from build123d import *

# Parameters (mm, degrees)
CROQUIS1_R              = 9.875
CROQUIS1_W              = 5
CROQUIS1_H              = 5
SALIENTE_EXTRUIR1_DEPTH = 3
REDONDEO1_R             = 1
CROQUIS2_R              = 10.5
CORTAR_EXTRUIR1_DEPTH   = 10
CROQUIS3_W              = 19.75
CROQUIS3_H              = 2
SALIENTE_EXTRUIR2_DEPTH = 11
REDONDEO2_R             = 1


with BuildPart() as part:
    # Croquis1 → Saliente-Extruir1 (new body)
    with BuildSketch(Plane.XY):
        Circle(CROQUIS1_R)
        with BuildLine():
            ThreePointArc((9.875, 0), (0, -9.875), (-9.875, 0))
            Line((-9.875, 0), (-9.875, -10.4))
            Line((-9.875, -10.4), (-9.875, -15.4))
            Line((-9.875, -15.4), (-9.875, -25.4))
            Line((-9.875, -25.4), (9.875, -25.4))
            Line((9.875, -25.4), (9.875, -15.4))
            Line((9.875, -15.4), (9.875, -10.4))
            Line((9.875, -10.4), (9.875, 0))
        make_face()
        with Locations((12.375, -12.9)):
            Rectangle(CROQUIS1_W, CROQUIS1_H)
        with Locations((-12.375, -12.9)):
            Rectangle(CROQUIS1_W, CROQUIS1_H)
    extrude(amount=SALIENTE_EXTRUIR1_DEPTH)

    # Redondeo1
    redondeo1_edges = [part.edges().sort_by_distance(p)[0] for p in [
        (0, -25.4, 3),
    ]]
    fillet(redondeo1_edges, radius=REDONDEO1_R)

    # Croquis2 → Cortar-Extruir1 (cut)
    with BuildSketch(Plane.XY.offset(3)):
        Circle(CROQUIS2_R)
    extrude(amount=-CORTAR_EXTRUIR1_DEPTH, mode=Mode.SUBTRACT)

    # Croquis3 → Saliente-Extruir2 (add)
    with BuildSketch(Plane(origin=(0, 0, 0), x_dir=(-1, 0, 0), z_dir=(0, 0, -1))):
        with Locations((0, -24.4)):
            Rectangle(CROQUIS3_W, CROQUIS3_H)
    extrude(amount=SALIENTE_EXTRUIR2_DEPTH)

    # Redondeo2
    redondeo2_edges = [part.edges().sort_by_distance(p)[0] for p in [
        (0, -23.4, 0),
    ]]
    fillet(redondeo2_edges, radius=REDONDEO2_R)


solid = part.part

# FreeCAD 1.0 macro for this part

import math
import FreeCAD as App
import Part
import Sketcher
from FreeCAD import Vector
Q = App.Units.Quantity


def edges_at(feature, points):
    """Names of the edges that pass closest to the given points."""
    edges = feature.Shape.Edges
    near = lambda p: min(range(len(edges)), key=lambda i: edges[i].distToShape(Part.Vertex(*p))[0])
    return sorted({f"Edge{near(p) + 1}" for p in points})


def add_polygon(sketch, points):
    """Adds a closed chain of lines whose ends are joined by coincident constraints."""
    first, n = sketch.GeometryCount, len(points)
    for a, b in zip(points, points[1:] + points[:1]):
        sketch.addGeometry(Part.LineSegment(App.Vector(*a, 0), App.Vector(*b, 0)), False)
    for i in range(n):
        sketch.addConstraint(Sketcher.Constraint("Coincident", first + i, 2, first + (i + 1) % n, 1))

doc = App.newDocument("Part")
body = doc.addObject("PartDesign::Body", "Body")

sketch1 = body.newObject("Sketcher::SketchObject", "Sketch")
sketch1.AttachmentSupport = (doc.getObject("XY_Plane"), [""])
sketch1.MapMode = "FlatFace"
sketch1.addGeometry(Part.ArcOfCircle(Part.Circle(Vector(0, 0, 0), Vector(0, 0, 1), 9.875), math.radians(0), math.radians(180)), False)
sketch1.addGeometry(Part.LineSegment(Vector(-9.875, 0, 0), Vector(-9.875, -10.4, 0)), False)
sketch1.addGeometry(Part.LineSegment(Vector(-9.875, -10.4, 0), Vector(-14.875, -10.4, 0)), False)
sketch1.addGeometry(Part.LineSegment(Vector(-14.875, -10.4, 0), Vector(-14.875, -15.4, 0)), False)
sketch1.addGeometry(Part.LineSegment(Vector(-14.875, -15.4, 0), Vector(-9.875, -15.4, 0)), False)
sketch1.addGeometry(Part.LineSegment(Vector(-9.875, -15.4, 0), Vector(-9.875, -25.4, 0)), False)
sketch1.addGeometry(Part.LineSegment(Vector(-9.875, -25.4, 0), Vector(9.875, -25.4, 0)), False)
sketch1.addGeometry(Part.LineSegment(Vector(9.875, -25.4, 0), Vector(9.875, -15.4, 0)), False)
sketch1.addGeometry(Part.LineSegment(Vector(9.875, -15.4, 0), Vector(14.875, -15.4, 0)), False)
sketch1.addGeometry(Part.LineSegment(Vector(14.875, -15.4, 0), Vector(14.875, -10.4, 0)), False)
sketch1.addGeometry(Part.LineSegment(Vector(14.875, -10.4, 0), Vector(9.875, -10.4, 0)), False)
sketch1.addGeometry(Part.LineSegment(Vector(9.875, -10.4, 0), Vector(9.875, 0, 0)), False)
sketch1.addConstraint(Sketcher.Constraint("Tangent", 0, 2, 1, 1))
sketch1.addConstraint(Sketcher.Constraint("Coincident", 1, 2, 2, 1))
sketch1.addConstraint(Sketcher.Constraint("Coincident", 2, 2, 3, 1))
sketch1.addConstraint(Sketcher.Constraint("Coincident", 3, 2, 4, 1))
sketch1.addConstraint(Sketcher.Constraint("Coincident", 4, 2, 5, 1))
sketch1.addConstraint(Sketcher.Constraint("Coincident", 5, 2, 6, 1))
sketch1.addConstraint(Sketcher.Constraint("Coincident", 6, 2, 7, 1))
sketch1.addConstraint(Sketcher.Constraint("Coincident", 7, 2, 8, 1))
sketch1.addConstraint(Sketcher.Constraint("Coincident", 8, 2, 9, 1))
sketch1.addConstraint(Sketcher.Constraint("Coincident", 9, 2, 10, 1))
sketch1.addConstraint(Sketcher.Constraint("Coincident", 10, 2, 11, 1))
sketch1.addConstraint(Sketcher.Constraint("Tangent", 11, 2, 0, 1))
sketch1.addConstraint(Sketcher.Constraint("Vertical", 1))
sketch1.addConstraint(Sketcher.Constraint("Horizontal", 2))
sketch1.addConstraint(Sketcher.Constraint("Vertical", 3))
sketch1.addConstraint(Sketcher.Constraint("Horizontal", 4))
sketch1.addConstraint(Sketcher.Constraint("Vertical", 5))
sketch1.addConstraint(Sketcher.Constraint("Horizontal", 6))
sketch1.addConstraint(Sketcher.Constraint("Vertical", 7))
sketch1.addConstraint(Sketcher.Constraint("Horizontal", 8))
sketch1.addConstraint(Sketcher.Constraint("Vertical", 9))
sketch1.addConstraint(Sketcher.Constraint("Horizontal", 10))
sketch1.addConstraint(Sketcher.Constraint("Vertical", 11))
sketch1.addConstraint(Sketcher.Constraint("Coincident", 0, 3, -1, 1))
sketch1.addConstraint(Sketcher.Constraint("Symmetric", 4, 2, 7, 2, -2))
sketch1.addConstraint(Sketcher.Constraint("Symmetric", 2, 2, 9, 2, -2))
sketch1.addConstraint(Sketcher.Constraint("Vertical", 1, 2, 4, 2))
sketch1.addConstraint(Sketcher.Constraint("Equal", 10, 3))
sketch1.addConstraint(Sketcher.Constraint("DistanceX", 2, 2, 2, 1, Q("5 mm")))
sketch1.addConstraint(Sketcher.Constraint("DistanceY", 5, 2, 5, 1, Q("10 mm")))
sketch1.addConstraint(Sketcher.Constraint("DistanceY", 1, 2, 1, 1, Q("10.4 mm")))
sketch1.addConstraint(Sketcher.Constraint("Radius", 0, Q("9.875 mm")))
pad1 = body.newObject("PartDesign::Pad", "Pad")
pad1.Profile = sketch1
pad1.Length = 3
doc.recompute()

fillet = body.newObject("PartDesign::Fillet", "Fillet")
fillet.Base = (pad1, edges_at(pad1, [(0, -25.4, 3)]))
fillet.Radius = 1

sketch2 = body.newObject("Sketcher::SketchObject", "Sketch001")
sketch2.AttachmentSupport = (doc.getObject("XY_Plane"), [""])
sketch2.MapMode = "FlatFace"
sketch2.AttachmentOffset = App.Placement(Vector(0, 0, 3), App.Rotation())
sketch2.addGeometry(Part.Circle(Vector(0, 0, 0), Vector(0, 0, 1), 10.5), False)
sketch2.addConstraint(Sketcher.Constraint("Coincident", 0, 3, -1, 1))
sketch2.addConstraint(Sketcher.Constraint("Diameter", 0, Q("21 mm")))
pocket1 = body.newObject("PartDesign::Pocket", "Pocket")
pocket1.Profile = sketch2
pocket1.Length = 10

sketch3 = body.newObject("Sketcher::SketchObject", "Sketch002")
sketch3.AttachmentSupport = (doc.getObject("XY_Plane"), [""])
sketch3.MapMode = "FlatFace"
add_polygon(sketch3, [(9.875, -23.4), (9.875, -25.4), (-9.875, -25.4), (-9.875, -23.4)])
sketch3.addConstraint(Sketcher.Constraint("Vertical", 0))
sketch3.addConstraint(Sketcher.Constraint("Horizontal", 1))
sketch3.addConstraint(Sketcher.Constraint("Vertical", 2))
sketch3.addConstraint(Sketcher.Constraint("Horizontal", 3))
sketch3.addConstraint(Sketcher.Constraint("DistanceY", 0, 2, 0, 1, Q("2 mm")))
sketch3.addConstraint(Sketcher.Constraint("DistanceX", 1, 2, 1, 1, Q("19.75 mm")))
sketch3.addConstraint(Sketcher.Constraint("DistanceY", 0, 2, -1, 1, Q("25.4 mm")))
sketch3.addConstraint(Sketcher.Constraint("DistanceX", -1, 1, 0, 2, Q("9.875 mm")))
pad2 = body.newObject("PartDesign::Pad", "Pad001")
pad2.Profile = sketch3
pad2.Length = 11
pad2.Reversed = True
doc.recompute()

fillet2 = body.newObject("PartDesign::Fillet", "Fillet001")
fillet2.Base = (pad2, edges_at(pad2, [(0, -23.4, 0)]))
fillet2.Radius = 1

doc.recompute()
